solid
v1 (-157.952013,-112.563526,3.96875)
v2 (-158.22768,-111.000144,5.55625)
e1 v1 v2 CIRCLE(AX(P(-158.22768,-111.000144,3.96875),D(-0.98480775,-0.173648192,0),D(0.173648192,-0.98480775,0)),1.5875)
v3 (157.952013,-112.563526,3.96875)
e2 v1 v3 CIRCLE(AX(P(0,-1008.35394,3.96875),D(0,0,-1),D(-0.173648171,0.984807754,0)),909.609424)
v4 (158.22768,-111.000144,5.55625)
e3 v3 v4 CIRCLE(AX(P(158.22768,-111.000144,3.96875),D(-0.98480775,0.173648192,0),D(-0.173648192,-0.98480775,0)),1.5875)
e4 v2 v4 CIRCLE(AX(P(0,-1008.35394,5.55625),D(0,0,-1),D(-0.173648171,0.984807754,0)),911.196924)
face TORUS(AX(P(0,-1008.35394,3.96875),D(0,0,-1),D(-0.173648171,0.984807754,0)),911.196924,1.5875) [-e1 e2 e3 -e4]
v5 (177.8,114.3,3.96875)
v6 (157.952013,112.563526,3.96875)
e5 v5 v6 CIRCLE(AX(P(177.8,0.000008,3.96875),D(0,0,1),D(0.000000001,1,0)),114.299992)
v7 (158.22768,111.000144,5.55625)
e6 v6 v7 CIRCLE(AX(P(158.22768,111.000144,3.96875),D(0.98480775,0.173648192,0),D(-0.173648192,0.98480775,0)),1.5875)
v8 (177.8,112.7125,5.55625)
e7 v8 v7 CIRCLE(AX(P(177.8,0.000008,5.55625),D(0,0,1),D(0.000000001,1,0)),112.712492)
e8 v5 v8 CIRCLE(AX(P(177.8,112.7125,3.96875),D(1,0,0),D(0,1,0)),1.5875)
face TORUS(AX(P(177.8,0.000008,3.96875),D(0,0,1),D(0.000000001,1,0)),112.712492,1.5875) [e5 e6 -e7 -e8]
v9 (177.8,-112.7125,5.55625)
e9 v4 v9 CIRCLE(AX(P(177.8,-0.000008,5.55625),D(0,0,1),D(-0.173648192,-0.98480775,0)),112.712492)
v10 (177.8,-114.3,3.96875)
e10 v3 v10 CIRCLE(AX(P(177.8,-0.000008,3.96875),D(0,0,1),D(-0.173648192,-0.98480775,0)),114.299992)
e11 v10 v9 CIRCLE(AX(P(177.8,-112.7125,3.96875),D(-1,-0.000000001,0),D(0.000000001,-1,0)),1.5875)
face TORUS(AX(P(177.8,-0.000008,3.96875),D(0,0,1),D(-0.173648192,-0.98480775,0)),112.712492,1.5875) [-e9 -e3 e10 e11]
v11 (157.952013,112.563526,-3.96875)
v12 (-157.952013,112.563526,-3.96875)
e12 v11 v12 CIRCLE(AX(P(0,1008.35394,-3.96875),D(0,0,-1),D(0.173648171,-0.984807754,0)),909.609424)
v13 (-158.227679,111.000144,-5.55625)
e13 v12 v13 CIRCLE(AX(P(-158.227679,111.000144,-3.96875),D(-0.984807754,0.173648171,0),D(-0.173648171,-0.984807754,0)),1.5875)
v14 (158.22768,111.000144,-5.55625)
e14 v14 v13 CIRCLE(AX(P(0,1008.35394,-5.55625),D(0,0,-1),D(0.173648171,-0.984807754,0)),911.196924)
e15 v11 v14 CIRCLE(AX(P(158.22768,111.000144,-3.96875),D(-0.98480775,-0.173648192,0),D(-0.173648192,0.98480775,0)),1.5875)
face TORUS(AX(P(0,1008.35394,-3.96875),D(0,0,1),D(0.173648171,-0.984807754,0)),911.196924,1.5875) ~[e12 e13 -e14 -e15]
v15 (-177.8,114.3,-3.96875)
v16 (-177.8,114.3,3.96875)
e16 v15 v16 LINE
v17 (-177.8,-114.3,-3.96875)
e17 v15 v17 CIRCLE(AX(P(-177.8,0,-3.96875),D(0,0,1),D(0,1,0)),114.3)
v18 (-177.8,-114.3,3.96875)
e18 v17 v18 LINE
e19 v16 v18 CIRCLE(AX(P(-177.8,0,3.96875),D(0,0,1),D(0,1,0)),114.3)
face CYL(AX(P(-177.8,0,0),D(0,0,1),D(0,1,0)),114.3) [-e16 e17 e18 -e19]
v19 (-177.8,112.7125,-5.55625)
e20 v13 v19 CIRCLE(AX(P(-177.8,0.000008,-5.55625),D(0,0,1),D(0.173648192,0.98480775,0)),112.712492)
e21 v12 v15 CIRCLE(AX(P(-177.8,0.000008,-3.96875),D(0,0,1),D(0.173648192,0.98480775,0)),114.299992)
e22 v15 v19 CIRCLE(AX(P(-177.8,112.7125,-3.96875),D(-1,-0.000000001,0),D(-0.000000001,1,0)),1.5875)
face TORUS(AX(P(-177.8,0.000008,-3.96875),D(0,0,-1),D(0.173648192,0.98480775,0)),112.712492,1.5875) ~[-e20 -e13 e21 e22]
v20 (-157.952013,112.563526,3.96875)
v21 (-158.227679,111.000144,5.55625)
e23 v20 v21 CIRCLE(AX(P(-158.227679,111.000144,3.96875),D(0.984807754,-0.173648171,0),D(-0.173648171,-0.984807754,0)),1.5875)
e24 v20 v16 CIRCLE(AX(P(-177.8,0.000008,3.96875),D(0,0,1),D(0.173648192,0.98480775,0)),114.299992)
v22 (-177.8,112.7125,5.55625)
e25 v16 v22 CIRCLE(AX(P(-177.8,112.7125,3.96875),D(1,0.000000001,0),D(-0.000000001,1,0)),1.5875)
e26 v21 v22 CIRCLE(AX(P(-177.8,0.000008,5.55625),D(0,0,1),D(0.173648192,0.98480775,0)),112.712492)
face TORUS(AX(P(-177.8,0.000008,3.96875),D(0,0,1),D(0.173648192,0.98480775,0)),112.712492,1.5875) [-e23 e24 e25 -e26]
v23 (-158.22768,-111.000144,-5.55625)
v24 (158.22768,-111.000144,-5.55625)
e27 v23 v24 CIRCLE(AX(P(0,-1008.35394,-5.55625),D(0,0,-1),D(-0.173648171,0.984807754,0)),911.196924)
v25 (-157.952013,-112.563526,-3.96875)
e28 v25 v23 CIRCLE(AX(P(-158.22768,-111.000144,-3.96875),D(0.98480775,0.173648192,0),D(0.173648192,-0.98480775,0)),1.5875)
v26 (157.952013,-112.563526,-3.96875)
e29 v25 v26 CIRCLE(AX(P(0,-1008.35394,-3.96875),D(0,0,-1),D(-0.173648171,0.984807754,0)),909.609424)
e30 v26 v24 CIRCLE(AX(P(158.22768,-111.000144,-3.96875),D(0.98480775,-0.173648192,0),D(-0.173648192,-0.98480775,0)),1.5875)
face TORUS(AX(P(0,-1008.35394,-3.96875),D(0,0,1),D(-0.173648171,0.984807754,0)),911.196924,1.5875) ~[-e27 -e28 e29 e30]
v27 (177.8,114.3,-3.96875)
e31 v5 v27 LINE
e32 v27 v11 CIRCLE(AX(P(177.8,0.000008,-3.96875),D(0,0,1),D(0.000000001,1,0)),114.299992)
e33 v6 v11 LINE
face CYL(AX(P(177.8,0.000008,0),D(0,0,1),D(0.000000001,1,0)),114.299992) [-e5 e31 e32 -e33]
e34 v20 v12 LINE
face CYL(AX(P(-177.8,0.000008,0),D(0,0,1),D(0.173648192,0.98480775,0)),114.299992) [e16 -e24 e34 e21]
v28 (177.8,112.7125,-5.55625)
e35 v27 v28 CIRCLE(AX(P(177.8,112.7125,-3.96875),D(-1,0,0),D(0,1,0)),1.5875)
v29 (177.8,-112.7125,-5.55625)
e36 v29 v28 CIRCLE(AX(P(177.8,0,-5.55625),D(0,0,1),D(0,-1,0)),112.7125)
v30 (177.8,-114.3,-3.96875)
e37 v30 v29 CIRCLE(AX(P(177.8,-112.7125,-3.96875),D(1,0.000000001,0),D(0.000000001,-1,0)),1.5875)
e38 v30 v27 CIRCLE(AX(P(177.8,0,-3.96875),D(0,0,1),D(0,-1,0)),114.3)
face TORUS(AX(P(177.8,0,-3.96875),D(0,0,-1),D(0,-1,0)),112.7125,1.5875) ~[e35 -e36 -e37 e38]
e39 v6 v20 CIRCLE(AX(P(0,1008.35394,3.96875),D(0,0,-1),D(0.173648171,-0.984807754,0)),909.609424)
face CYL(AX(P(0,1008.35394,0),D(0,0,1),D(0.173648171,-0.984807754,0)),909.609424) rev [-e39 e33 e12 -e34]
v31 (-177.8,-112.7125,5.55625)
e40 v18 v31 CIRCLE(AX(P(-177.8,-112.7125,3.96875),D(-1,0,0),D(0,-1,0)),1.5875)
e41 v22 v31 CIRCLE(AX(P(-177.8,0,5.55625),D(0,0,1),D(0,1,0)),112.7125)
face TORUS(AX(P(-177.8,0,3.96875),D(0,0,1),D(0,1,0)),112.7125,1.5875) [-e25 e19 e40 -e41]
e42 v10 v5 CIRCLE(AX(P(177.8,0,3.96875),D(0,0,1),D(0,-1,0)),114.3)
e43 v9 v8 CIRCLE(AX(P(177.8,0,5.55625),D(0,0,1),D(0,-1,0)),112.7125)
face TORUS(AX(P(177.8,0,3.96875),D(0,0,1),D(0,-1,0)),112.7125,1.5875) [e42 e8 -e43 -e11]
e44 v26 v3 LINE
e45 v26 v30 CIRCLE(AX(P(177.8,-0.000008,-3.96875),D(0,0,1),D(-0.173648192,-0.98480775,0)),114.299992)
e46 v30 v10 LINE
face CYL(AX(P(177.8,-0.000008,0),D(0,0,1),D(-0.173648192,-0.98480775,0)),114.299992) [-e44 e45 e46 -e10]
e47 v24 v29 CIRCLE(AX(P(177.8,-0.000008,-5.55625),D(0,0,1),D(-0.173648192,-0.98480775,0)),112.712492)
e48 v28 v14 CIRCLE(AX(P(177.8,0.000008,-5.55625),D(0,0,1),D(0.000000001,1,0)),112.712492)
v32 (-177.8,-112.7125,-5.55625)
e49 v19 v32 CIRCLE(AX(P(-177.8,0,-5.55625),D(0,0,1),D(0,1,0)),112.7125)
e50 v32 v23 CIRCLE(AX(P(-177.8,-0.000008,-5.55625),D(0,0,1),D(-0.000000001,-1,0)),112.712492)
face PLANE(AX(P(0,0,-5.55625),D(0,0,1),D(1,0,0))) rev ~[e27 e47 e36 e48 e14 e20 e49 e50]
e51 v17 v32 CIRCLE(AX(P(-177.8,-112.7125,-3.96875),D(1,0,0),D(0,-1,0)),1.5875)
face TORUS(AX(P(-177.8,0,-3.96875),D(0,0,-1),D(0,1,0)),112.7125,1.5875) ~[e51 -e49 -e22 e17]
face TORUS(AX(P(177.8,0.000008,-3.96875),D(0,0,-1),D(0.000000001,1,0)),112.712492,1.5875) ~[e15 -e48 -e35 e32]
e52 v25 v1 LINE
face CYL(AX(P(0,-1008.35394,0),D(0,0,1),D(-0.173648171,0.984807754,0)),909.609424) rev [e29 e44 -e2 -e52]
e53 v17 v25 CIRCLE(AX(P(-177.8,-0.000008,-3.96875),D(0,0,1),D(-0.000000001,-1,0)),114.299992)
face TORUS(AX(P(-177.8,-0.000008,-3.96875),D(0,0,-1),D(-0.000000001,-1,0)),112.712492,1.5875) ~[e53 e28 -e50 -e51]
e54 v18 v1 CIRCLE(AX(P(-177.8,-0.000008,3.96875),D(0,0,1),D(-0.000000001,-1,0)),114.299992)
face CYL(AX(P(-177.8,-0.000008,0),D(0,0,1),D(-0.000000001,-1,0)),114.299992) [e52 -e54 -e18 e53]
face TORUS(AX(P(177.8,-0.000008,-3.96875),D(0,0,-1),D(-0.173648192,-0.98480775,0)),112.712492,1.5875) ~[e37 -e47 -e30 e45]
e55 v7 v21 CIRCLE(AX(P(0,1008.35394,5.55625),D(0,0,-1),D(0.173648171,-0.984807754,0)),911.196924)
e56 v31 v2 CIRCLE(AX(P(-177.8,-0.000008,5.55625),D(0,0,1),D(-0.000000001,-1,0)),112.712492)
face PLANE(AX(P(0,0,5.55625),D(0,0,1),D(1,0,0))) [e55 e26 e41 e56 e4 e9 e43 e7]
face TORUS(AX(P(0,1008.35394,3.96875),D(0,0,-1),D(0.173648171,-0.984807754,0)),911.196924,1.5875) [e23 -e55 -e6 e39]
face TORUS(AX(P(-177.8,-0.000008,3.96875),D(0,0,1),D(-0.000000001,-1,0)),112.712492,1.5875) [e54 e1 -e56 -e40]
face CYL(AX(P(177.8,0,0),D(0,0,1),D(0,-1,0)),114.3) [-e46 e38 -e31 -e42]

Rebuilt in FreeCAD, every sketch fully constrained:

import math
import FreeCAD as App
import Part
import Sketcher
from FreeCAD import Vector
Q = App.Units.Quantity


def edges_at(feature, points):
    """Names of the edges that pass closest to the given points."""
    edges = feature.Shape.Edges
    near = lambda p: min(range(len(edges)), key=lambda i: edges[i].distToShape(Part.Vertex(*p))[0])
    return sorted({f"Edge{near(p) + 1}" for p in points})

doc = App.newDocument("Part")
params = doc.addObject("Spreadsheet::Sheet", "Params")
for row, (alias, value) in enumerate([
    ("sketch1_radius", "4.5 in"),
    ("pad1_length", "0.4375 in"),
    ("fillet_radius", "0.0625 in"),
], start=1):
    params.set(f"A{row}", alias)
    params.set(f"B{row}", "=" + value)
    params.setAlias(f"B{row}", alias)

body = doc.addObject("PartDesign::Body", "Body")

# Sketch on XY plane
sketch1 = body.newObject("Sketcher::SketchObject", "Sketch")
sketch1.AttachmentSupport = (doc.getObject("XY_Plane"), [""])
sketch1.MapMode = "FlatFace"
sketch1.addGeometry(Part.ArcOfCircle(Part.Circle(Vector(-178, 0, 0), Vector(0, 0, 1), 114), math.radians(80), math.radians(90)), False)
sketch1.addGeometry(Part.ArcOfCircle(Part.Circle(Vector(-178, 0, 0), Vector(0, 0, 1), 114), math.radians(90), math.radians(270)), False)
sketch1.addGeometry(Part.ArcOfCircle(Part.Circle(Vector(-178, 0, 0), Vector(0, 0, 1), 114), math.radians(-90), math.radians(-80)), False)
sketch1.addGeometry(Part.ArcOfCircle(Part.Circle(Vector(0, -1008, 0), Vector(0, 0, 1), 910), math.radians(80), math.radians(100)), False)
sketch1.addGeometry(Part.ArcOfCircle(Part.Circle(Vector(178, 0, 0), Vector(0, 0, 1), 114), math.radians(-100), math.radians(-90)), False)
sketch1.addGeometry(Part.ArcOfCircle(Part.Circle(Vector(178, 0, 0), Vector(0, 0, 1), 114), math.radians(-90), math.radians(90)), False)
sketch1.addGeometry(Part.ArcOfCircle(Part.Circle(Vector(178, 0, 0), Vector(0, 0, 1), 114), math.radians(90), math.radians(100)), False)
sketch1.addGeometry(Part.ArcOfCircle(Part.Circle(Vector(0, 1008, 0), Vector(0, 0, 1), 910), math.radians(-100), math.radians(-80)), False)
sketch1.addConstraint(Sketcher.Constraint("Tangent", 0, 2, 1, 1))
sketch1.addConstraint(Sketcher.Constraint("Tangent", 1, 2, 2, 1))
sketch1.addConstraint(Sketcher.Constraint("Tangent", 2, 2, 3, 2))
sketch1.addConstraint(Sketcher.Constraint("Tangent", 3, 1, 4, 1))
sketch1.addConstraint(Sketcher.Constraint("Tangent", 4, 2, 5, 1))
sketch1.addConstraint(Sketcher.Constraint("Tangent", 5, 2, 6, 1))
sketch1.addConstraint(Sketcher.Constraint("Tangent", 6, 2, 7, 2))
sketch1.addConstraint(Sketcher.Constraint("Tangent", 7, 1, 0, 1))
sketch1.addConstraint(Sketcher.Constraint("Equal", 0, 2))
sketch1.addConstraint(Sketcher.Constraint("Equal", 2, 4))
sketch1.addConstraint(Sketcher.Constraint("Equal", 1, 5))
sketch1.addConstraint(Sketcher.Constraint("Equal", 4, 6))
sketch1.addConstraint(Sketcher.Constraint("Equal", 3, 7))
sketch1.addConstraint(Sketcher.Constraint("Symmetric", 0, 3, 4, 3, -1, 1))
sketch1.addConstraint(Sketcher.Constraint("Symmetric", 1, 2, 4, 2, -2))
sketch1.addConstraint(Sketcher.Constraint("Vertical", 2, 3, 0, 2))
sketch1.addConstraint(Sketcher.Constraint("Vertical", 0, 2, 1, 2))
sketch1.addConstraint(Sketcher.Constraint("Vertical", 4, 2, 5, 2))
sketch1.addConstraint(Sketcher.Constraint("Radius", 1, Q("4.5 in")))
sketch1.addConstraint(Sketcher.Constraint("DistanceX", 0, 3, -1, 1, Q("7 in")))
sketch1.addConstraint(Sketcher.Constraint("Radius", 0, Q("114.299992 mm")))
sketch1.addConstraint(Sketcher.Constraint("Radius", 3, Q("909.609424 mm")))
sketch1.setExpression("Constraints[18]", "Params.sketch1_radius")
pad1 = body.newObject("PartDesign::Pad", "Pad")
pad1.Profile = sketch1
pad1.setExpression("Length", "Params.pad1_length")
pad1.Midplane = True
doc.recompute()

fillet = body.newObject("PartDesign::Fillet", "Fillet")
fillet.Base = (pad1, edges_at(pad1, [
    (167.838, -113.865, 5.556),
    (292.1, 0, 5.556),
    (167.838, 113.865, 5.556),
    (0, 98.745, 5.556),
    (-167.838, 113.865, 5.556),
    (-292.1, 0, 5.556),
    (-167.838, -113.865, 5.556),
    (0, -98.745, 5.556),
    (167.838, -113.865, -5.556),
    (292.1, 0, -5.556),
    (167.838, 113.865, -5.556),
    (0, 98.745, -5.556),
    (-167.838, 113.865, -5.556),
    (-292.1, 0, -5.556),
    (-167.838, -113.865, -5.556),
    (0, -98.745, -5.556),
]))
fillet.setExpression("Radius", "Params.fillet_radius")

doc.recompute()
